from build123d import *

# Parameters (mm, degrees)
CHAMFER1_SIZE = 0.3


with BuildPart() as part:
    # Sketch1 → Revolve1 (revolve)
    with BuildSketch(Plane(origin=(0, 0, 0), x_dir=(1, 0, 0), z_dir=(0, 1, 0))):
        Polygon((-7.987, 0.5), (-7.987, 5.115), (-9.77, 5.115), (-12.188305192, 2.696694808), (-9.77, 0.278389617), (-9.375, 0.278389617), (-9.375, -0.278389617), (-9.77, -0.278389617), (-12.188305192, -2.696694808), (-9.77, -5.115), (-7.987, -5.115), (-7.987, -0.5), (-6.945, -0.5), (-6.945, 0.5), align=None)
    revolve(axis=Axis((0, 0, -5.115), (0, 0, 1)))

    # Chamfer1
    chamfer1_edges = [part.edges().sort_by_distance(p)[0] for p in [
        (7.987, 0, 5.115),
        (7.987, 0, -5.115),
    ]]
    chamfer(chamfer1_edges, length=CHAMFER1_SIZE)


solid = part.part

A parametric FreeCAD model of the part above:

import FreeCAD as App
import Part
import Sketcher
from FreeCAD import Vector


def edges_at(feature, points):
    """Names of the edges that pass closest to the given points."""
    edges = feature.Shape.Edges
    near = lambda p: min(range(len(edges)), key=lambda i: edges[i].distToShape(Part.Vertex(*p))[0])
    return sorted({f"Edge{near(p) + 1}" for p in points})


def add_polygon(sketch, points):
    """Adds a closed chain of lines whose ends are joined by coincident constraints."""
    first, n = sketch.GeometryCount, len(points)
    for a, b in zip(points, points[1:] + points[:1]):
        sketch.addGeometry(Part.LineSegment(App.Vector(*a, 0), App.Vector(*b, 0)), False)
    for i in range(n):
        sketch.addConstraint(Sketcher.Constraint("Coincident", first + i, 2, first + (i + 1) % n, 1))

doc = App.newDocument("Part")
body = doc.addObject("PartDesign::Body", "Body")

sketch1 = body.newObject("Sketcher::SketchObject", "Sketch")
sketch1.AttachmentSupport = (doc.getObject("XZ_Plane"), [""])
sketch1.MapMode = "FlatFace"
add_polygon(sketch1, [(-7.99, -0.5), (-7.99, -5.12), (-9.77, -5.12), (-12.19, -2.7), (-9.77, -0.28), (-9.38, -0.28), (-9.38, 0.28), (-9.77, 0.28), (-12.19, 2.7), (-9.77, 5.12), (-7.99, 5.12), (-7.99, 0.5), (-6.95, 0.5), (-6.95, -0.5)])
sketch1.addConstraint([
    Sketcher.Constraint("Vertical", 0),
    Sketcher.Constraint("Horizontal", 1),
    Sketcher.Constraint("Horizontal", 4),
    Sketcher.Constraint("Vertical", 5),
    Sketcher.Constraint("Horizontal", 6),
    Sketcher.Constraint("Horizontal", 9),
    Sketcher.Constraint("Vertical", 10),
    Sketcher.Constraint("Horizontal", 11),
    Sketcher.Constraint("Vertical", 12),
    Sketcher.Constraint("Horizontal", 13),
    Sketcher.Constraint("Symmetric", 3, 2, 6, 2, -1),
    Sketcher.Constraint("Symmetric", 2, 2, 7, 2, -1),
    Sketcher.Constraint("Symmetric", 1, 2, 8, 2, -1),
    Sketcher.Constraint("Symmetric", 10, 2, 13, 2, -1),
    Sketcher.Constraint("Perpendicular", 2, 3),
    Sketcher.Constraint("Perpendicular", 3, 7),
    Sketcher.Constraint("Vertical", 1, 2, 3, 2),
    Sketcher.Constraint("DistanceY", 12, 2, 12, 1, 1.0),
    Sketcher.Constraint("Distance", 2, 3.42),
    Sketcher.Constraint("DistanceX", 1, 2, 1, 1, 1.783),
    Sketcher.Constraint("DistanceX", 4, 1, 4, 2, 0.395),
    Sketcher.Constraint("DistanceX", 11, 1, 11, 2, 1.042),
    Sketcher.Constraint("DistanceY", 0, 2, 0, 1, 4.615),
    Sketcher.Constraint("DistanceX", 1, 2, -1, 1, 9.77),
])
revolution = body.newObject("PartDesign::Revolution", "Revolution")
revolution.Profile = sketch1
revolution.ReferenceAxis = (sketch1, ["V_Axis"])
revolution.Angle = 360
doc.recompute()

chamfer = body.newObject("PartDesign::Chamfer", "Chamfer")
chamfer.Base = (revolution, edges_at(revolution, [(7.987, 0, 5.115), (7.987, 0, -5.115)]))
chamfer.Size = 0.3

doc.recompute()
